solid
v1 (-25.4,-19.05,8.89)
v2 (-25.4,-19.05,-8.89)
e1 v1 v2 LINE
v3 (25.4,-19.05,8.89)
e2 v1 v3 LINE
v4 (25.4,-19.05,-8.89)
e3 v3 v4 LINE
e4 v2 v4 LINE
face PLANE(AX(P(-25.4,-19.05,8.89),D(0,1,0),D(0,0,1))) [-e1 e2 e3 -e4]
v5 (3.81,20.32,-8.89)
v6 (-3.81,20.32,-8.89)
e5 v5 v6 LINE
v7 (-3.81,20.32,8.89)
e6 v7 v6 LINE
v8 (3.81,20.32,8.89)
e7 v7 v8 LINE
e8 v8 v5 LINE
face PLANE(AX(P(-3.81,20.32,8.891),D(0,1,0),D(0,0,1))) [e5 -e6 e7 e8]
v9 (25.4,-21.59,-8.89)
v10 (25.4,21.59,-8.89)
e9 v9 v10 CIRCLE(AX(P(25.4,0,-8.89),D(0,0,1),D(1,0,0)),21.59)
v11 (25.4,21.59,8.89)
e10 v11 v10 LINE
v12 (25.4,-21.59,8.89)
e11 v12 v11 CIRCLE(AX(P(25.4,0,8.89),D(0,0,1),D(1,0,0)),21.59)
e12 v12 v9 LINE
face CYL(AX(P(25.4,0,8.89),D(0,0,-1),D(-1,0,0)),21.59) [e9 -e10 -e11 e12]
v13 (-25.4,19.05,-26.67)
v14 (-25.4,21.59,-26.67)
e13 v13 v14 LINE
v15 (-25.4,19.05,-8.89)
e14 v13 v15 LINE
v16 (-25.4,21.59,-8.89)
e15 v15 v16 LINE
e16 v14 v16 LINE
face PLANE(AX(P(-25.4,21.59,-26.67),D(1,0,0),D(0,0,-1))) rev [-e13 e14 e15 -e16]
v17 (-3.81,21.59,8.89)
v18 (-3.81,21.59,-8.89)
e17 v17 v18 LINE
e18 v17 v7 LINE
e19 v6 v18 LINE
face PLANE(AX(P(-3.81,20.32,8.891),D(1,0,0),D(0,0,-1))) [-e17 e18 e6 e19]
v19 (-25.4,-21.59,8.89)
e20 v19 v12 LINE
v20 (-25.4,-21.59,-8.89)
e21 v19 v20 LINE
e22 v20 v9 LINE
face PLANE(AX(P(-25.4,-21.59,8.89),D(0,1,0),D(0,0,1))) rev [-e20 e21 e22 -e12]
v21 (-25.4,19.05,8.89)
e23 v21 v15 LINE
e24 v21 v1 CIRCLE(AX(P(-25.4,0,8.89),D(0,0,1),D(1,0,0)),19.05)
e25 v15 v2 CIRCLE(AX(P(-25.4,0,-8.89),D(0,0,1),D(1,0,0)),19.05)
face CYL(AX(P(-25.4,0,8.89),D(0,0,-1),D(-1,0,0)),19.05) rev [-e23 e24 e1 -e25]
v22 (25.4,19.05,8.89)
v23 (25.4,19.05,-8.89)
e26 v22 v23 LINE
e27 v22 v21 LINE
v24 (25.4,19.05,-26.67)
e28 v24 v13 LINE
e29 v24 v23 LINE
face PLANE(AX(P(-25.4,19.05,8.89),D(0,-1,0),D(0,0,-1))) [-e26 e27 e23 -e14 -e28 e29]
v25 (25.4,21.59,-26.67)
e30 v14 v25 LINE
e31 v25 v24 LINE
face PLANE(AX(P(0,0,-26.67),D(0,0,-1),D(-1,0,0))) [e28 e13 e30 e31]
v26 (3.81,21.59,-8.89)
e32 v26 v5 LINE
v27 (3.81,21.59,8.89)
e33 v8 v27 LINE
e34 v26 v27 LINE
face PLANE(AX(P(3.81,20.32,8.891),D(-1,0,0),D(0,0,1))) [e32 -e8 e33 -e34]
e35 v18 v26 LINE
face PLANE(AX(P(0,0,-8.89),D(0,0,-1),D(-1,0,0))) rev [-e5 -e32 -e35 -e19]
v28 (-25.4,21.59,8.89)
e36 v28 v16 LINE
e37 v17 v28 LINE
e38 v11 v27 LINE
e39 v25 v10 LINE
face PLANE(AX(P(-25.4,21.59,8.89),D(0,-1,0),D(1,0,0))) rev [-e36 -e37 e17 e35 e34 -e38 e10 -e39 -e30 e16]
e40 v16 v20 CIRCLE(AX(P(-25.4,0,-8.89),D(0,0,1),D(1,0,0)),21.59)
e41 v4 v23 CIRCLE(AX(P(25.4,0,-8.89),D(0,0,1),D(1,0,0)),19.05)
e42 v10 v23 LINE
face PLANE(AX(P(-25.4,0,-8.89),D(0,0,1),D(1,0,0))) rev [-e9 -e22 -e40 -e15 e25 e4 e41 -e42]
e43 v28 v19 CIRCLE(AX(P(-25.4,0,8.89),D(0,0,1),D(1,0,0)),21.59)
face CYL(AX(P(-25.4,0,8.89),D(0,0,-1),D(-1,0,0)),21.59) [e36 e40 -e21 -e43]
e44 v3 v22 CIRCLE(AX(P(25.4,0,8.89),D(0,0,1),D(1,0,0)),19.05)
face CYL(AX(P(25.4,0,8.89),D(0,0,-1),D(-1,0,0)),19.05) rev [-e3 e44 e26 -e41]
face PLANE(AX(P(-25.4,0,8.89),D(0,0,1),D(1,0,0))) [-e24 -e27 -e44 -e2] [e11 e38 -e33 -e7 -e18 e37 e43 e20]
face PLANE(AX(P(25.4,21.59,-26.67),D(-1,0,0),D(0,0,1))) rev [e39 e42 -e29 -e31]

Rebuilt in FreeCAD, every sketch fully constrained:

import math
import FreeCAD as App
import Part
import Sketcher

V = App.Vector
Q = App.Units.Quantity


def add_polygon(sketch, points):
    """Adds a closed chain of lines whose ends are joined by coincident constraints."""
    first, n = sketch.GeometryCount, len(points)
    for a, b in zip(points, points[1:] + points[:1]):
        sketch.addGeometry(Part.LineSegment(App.Vector(*a, 0), App.Vector(*b, 0)), False)
    for i in range(n):
        sketch.addConstraint(Sketcher.Constraint("Coincident", first + i, 2, first + (i + 1) % n, 1))

doc = App.newDocument("Part")
params = doc.addObject("Spreadsheet::Sheet", "Params")
for row, (alias, value) in enumerate([
    ("sketch1_width", "2 in"),
    ("sketch1_radius", "0.85 in"),
    ("sketch1_radius2", "0.75 in"),
    ("pad1_length", "0.7 in"),
    ("sketch2_width", "0.3 in"),
    ("sketch2_height", "0.1 in"),
    ("sketch3_width", "0.3 in"),
    ("sketch3_height", "0.1 in"),
    ("sketch4_width", "2 in"),
    ("sketch4_height", "0.1 in"),
    ("pad2_length", "0.7 in"),
], start=1):
    params.set(f"A{row}", alias)
    params.set(f"B{row}", "=" + value)
    params.setAlias(f"B{row}", alias)

body = doc.addObject("PartDesign::Body", "Body")

# Sketch on XY plane
sketch1 = body.newObject("Sketcher::SketchObject", "Sketch")
sketch1.AttachmentSupport = (doc.getObject("XY_Plane"), [""])
sketch1.MapMode = "FlatFace"
sketch1.addGeometry([
    Part.LineSegment(V(25, 22, 0), V(-25, 22, 0)),  # 0
    Part.ArcOfCircle(Part.Circle(V(-25, 0, 0), V(0, 0, 1), 22), math.radians(90), math.radians(270)),  # 1
    Part.LineSegment(V(-25, -22, 0), V(25, -22, 0)),  # 2
    Part.ArcOfCircle(Part.Circle(V(25, 0, 0), V(0, 0, 1), 22), math.radians(-90), math.radians(90)),  # 3
    Part.LineSegment(V(-25, 19, 0), V(25, 19, 0)),  # 4
    Part.ArcOfCircle(Part.Circle(V(25, 0, 0), V(0, 0, 1), 19), math.radians(-90), math.radians(90)),  # 5
    Part.LineSegment(V(25, -19, 0), V(-25, -19, 0)),  # 6
    Part.ArcOfCircle(Part.Circle(V(-25, 0, 0), V(0, 0, 1), 19), math.radians(90), math.radians(270)),  # 7
], False)
sketch1.addConstraint([
    Sketcher.Constraint("Tangent", 0, 2, 1, 1),
    Sketcher.Constraint("Tangent", 1, 2, 2, 1),
    Sketcher.Constraint("Tangent", 2, 2, 3, 1),
    Sketcher.Constraint("Tangent", 3, 2, 0, 1),
    Sketcher.Constraint("Tangent", 4, 2, 5, 2),
    Sketcher.Constraint("Tangent", 5, 1, 6, 1),
    Sketcher.Constraint("Tangent", 6, 2, 7, 2),
    Sketcher.Constraint("Tangent", 7, 1, 4, 1),
    Sketcher.Constraint("Horizontal", 0),
    Sketcher.Constraint("Horizontal", 2),
    Sketcher.Constraint("Horizontal", 4),
    Sketcher.Constraint("Horizontal", 6),
    Sketcher.Constraint("Coincident", 5, 3, 3, 3),
    Sketcher.Constraint("Symmetric", 1, 3, 3, 3, -1, 1),
    Sketcher.Constraint("Vertical", 7, 3, 0, 2),
    Sketcher.Constraint("DistanceX", 0, 2, 0, 1, Q("2 in")),
    Sketcher.Constraint("Radius", 1, Q("0.85 in")),
    Sketcher.Constraint("Radius", 5, Q("0.75 in")),
])
sketch1.setExpression("Constraints[15]", "Params.sketch1_width")
sketch1.setExpression("Constraints[16]", "Params.sketch1_radius")
sketch1.setExpression("Constraints[17]", "Params.sketch1_radius2")
pad1 = body.newObject("PartDesign::Pad", "Pad")
pad1.Profile = sketch1
pad1.setExpression("Length", "Params.pad1_length")
pad1.Midplane = True

# Sketch on XY plane
sketch2 = body.newObject("Sketcher::SketchObject", "Sketch001")
sketch2.AttachmentSupport = (doc.getObject("XY_Plane"), [""])
sketch2.MapMode = "FlatFace"
add_polygon(sketch2, [(-3.8, 22.9), (-3.8, 20.3), (3.8, 20.3), (3.8, 22.9)])  # lines 0-3
sketch2.addConstraint([
    Sketcher.Constraint("Vertical", 0),
    Sketcher.Constraint("Horizontal", 1),
    Sketcher.Constraint("Vertical", 2),
    Sketcher.Constraint("Horizontal", 3),
    Sketcher.Constraint("DistanceX", 1, 1, 1, 2, Q("0.3 in")),
    Sketcher.Constraint("DistanceY", 0, 2, 0, 1, Q("0.1 in")),
    Sketcher.Constraint("DistanceY", -1, 1, 0, 2, Q("0.8 in")),
    Sketcher.Constraint("DistanceX", 0, 2, -1, 1, Q("0.15 in")),
])
sketch2.setExpression("Constraints[8]", "Params.sketch2_width")
sketch2.setExpression("Constraints[9]", "Params.sketch2_height")
pocket1 = body.newObject("PartDesign::Pocket", "Pocket")
pocket1.Profile = sketch2
pocket1.Type = "UpToFirst"

# Sketch on XY plane
sketch3 = body.newObject("Sketcher::SketchObject", "Sketch002")
sketch3.AttachmentSupport = (doc.getObject("XY_Plane"), [""])
sketch3.MapMode = "FlatFace"
add_polygon(sketch3, [(-3.8, 22.9), (-3.8, 20.3), (3.8, 20.3), (3.8, 22.9)])  # lines 0-3
sketch3.addConstraint([
    Sketcher.Constraint("Vertical", 0),
    Sketcher.Constraint("Horizontal", 1),
    Sketcher.Constraint("Vertical", 2),
    Sketcher.Constraint("Horizontal", 3),
    Sketcher.Constraint("DistanceX", 1, 1, 1, 2, Q("0.3 in")),
    Sketcher.Constraint("DistanceY", 0, 2, 0, 1, Q("0.1 in")),
    Sketcher.Constraint("DistanceY", -1, 1, 0, 2, Q("0.8 in")),
    Sketcher.Constraint("DistanceX", 0, 2, -1, 1, Q("0.15 in")),
])
sketch3.setExpression("Constraints[8]", "Params.sketch3_width")
sketch3.setExpression("Constraints[9]", "Params.sketch3_height")
pocket2 = body.newObject("PartDesign::Pocket", "Pocket001")
pocket2.Profile = sketch3
pocket2.Type = "UpToFirst"
pocket2.Reversed = True

# Sketch on XY plane
sketch4 = body.newObject("Sketcher::SketchObject", "Sketch003")
sketch4.AttachmentSupport = (doc.getObject("XY_Plane"), [""])
sketch4.MapMode = "FlatFace"
sketch4.AttachmentOffset = App.Placement(V(0, 0, -0.35 * 25.4), App.Rotation())
add_polygon(sketch4, [(25.4, 21.6), (25.4, 19.1), (-25.4, 19.1), (-25.4, 21.6)])  # lines 0-3
sketch4.addConstraint([
    Sketcher.Constraint("Vertical", 0),
    Sketcher.Constraint("Horizontal", 1),
    Sketcher.Constraint("Vertical", 2),
    Sketcher.Constraint("Horizontal", 3),
    Sketcher.Constraint("DistanceX", 1, 2, 1, 1, Q("2 in")),
    Sketcher.Constraint("DistanceY", 0, 2, 0, 1, Q("0.1 in")),
    Sketcher.Constraint("DistanceX", -1, 1, 0, 2, Q("1 in")),
    Sketcher.Constraint("DistanceY", -1, 1, 0, 2, Q("0.75 in")),
])
sketch4.setExpression("Constraints[8]", "Params.sketch4_width")
sketch4.setExpression("Constraints[9]", "Params.sketch4_height")
pad2 = body.newObject("PartDesign::Pad", "Pad001")
pad2.Profile = sketch4
pad2.setExpression("Length", "Params.pad2_length")
pad2.Reversed = True

doc.recompute()
